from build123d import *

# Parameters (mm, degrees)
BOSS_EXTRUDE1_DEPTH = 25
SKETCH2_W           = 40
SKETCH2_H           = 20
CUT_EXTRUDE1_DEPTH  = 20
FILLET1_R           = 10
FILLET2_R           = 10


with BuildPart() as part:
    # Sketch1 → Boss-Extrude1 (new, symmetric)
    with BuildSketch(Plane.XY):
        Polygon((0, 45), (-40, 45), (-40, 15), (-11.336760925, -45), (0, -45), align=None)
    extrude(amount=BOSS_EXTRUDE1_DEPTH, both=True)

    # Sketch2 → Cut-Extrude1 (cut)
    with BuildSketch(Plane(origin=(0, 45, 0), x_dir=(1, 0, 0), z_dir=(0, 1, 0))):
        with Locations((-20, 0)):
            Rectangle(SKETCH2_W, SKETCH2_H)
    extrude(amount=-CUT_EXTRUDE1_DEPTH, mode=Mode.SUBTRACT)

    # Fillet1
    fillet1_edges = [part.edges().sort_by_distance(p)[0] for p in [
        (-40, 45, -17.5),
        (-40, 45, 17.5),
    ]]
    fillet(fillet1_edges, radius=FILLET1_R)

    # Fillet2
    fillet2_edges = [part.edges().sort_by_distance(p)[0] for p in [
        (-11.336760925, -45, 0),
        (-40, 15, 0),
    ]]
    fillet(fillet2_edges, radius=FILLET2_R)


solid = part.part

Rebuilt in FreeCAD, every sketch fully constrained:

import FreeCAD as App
import Part
import Sketcher


def edges_at(feature, points):
    """Names of the edges that pass closest to the given points."""
    edges = feature.Shape.Edges
    near = lambda p: min(range(len(edges)), key=lambda i: edges[i].distToShape(Part.Vertex(*p))[0])
    return sorted({f"Edge{near(p) + 1}" for p in points})

doc = App.newDocument("Part")
body = doc.addObject("PartDesign::Body", "Body")

# Sketch on XY plane
sketch1 = body.newObject("Sketcher::SketchObject", "Sketch")
sketch1.AttachmentSupport = (doc.getObject("XY_Plane"), [""])
sketch1.MapMode = "FlatFace"
sketch1.addGeometry(Part.LineSegment(App.Vector(0, 45, 0), App.Vector(-40, 45, 0)), False)
sketch1.addGeometry(Part.LineSegment(App.Vector(-40, 45, 0), App.Vector(-40, 15, 0)), False)
sketch1.addGeometry(Part.LineSegment(App.Vector(-40, 15, 0), App.Vector(-11, -45, 0)), False)
sketch1.addGeometry(Part.LineSegment(App.Vector(-11, -45, 0), App.Vector(0, -45, 0)), False)
sketch1.addGeometry(Part.LineSegment(App.Vector(0, -45, 0), App.Vector(0, 45, 0)), False)
sketch1.addConstraint(Sketcher.Constraint("Coincident", 0, 2, 1, 1))
sketch1.addConstraint(Sketcher.Constraint("Coincident", 1, 2, 2, 1))
sketch1.addConstraint(Sketcher.Constraint("Coincident", 2, 2, 3, 1))
sketch1.addConstraint(Sketcher.Constraint("Coincident", 3, 2, 4, 1))
sketch1.addConstraint(Sketcher.Constraint("Coincident", 4, 2, 0, 1))
sketch1.addConstraint(Sketcher.Constraint("Horizontal", 0))
sketch1.addConstraint(Sketcher.Constraint("Vertical", 1))
sketch1.addConstraint(Sketcher.Constraint("Horizontal", 3))
sketch1.addConstraint(Sketcher.Constraint("Vertical", 4))
sketch1.addConstraint(Sketcher.Constraint("Symmetric", 3, 2, 4, 2, -1, 1))
sketch1.addConstraint(Sketcher.Constraint("DistanceX", 0, 2, 0, 1, 40.0))
sketch1.addConstraint(Sketcher.Constraint("DistanceY", 1, 2, 1, 1, 30.0))
sketch1.addConstraint(Sketcher.Constraint("DistanceY", 4, 1, 4, 2, 90.0))
sketch1.addConstraint(Sketcher.Constraint("DistanceX", 3, 1, 3, 2, 11.336761))
pad1 = body.newObject("PartDesign::Pad", "Pad")
pad1.Profile = sketch1
pad1.Length = 50
pad1.Midplane = True

# Sketch on XZ plane
sketch2 = body.newObject("Sketcher::SketchObject", "Sketch001")
sketch2.AttachmentSupport = (doc.getObject("XZ_Plane"), [""])
sketch2.MapMode = "FlatFace"
sketch2.AttachmentOffset = App.Placement(App.Vector(0, 0, -45), App.Rotation())
sketch2.addGeometry(Part.LineSegment(App.Vector(-40, -10, 0), App.Vector(-40, 10, 0)), False)
sketch2.addGeometry(Part.LineSegment(App.Vector(-40, 10, 0), App.Vector(0, 10, 0)), False)
sketch2.addGeometry(Part.LineSegment(App.Vector(0, 10, 0), App.Vector(0, -10, 0)), False)
sketch2.addGeometry(Part.LineSegment(App.Vector(0, -10, 0), App.Vector(-40, -10, 0)), False)
sketch2.addConstraint(Sketcher.Constraint("Coincident", 0, 2, 1, 1))
sketch2.addConstraint(Sketcher.Constraint("Coincident", 1, 2, 2, 1))
sketch2.addConstraint(Sketcher.Constraint("Coincident", 2, 2, 3, 1))
sketch2.addConstraint(Sketcher.Constraint("Coincident", 3, 2, 0, 1))
sketch2.addConstraint(Sketcher.Constraint("Vertical", 0))
sketch2.addConstraint(Sketcher.Constraint("Horizontal", 1))
sketch2.addConstraint(Sketcher.Constraint("Vertical", 2))
sketch2.addConstraint(Sketcher.Constraint("Horizontal", 3))
sketch2.addConstraint(Sketcher.Constraint("Symmetric", 1, 2, 2, 2, -1, 1))
sketch2.addConstraint(Sketcher.Constraint("DistanceX", 1, 1, 1, 2, 40.0))
sketch2.addConstraint(Sketcher.Constraint("DistanceY", 0, 1, 0, 2, 20.0))
pocket1 = body.newObject("PartDesign::Pocket", "Pocket")
pocket1.Profile = sketch2
pocket1.Length = 20
pocket1.Reversed = True
doc.recompute()

fillet = body.newObject("PartDesign::Fillet", "Fillet")
fillet.Base = (pocket1, edges_at(pocket1, [(-40, 45, -17.5), (-40, 45, 17.5)]))
fillet.Radius = 10
doc.recompute()

fillet2 = body.newObject("PartDesign::Fillet", "Fillet001")
fillet2.Base = (fillet, edges_at(fillet, [(-11.337, -45, 0), (-40, 15, 0)]))
fillet2.Radius = 10

doc.recompute()
